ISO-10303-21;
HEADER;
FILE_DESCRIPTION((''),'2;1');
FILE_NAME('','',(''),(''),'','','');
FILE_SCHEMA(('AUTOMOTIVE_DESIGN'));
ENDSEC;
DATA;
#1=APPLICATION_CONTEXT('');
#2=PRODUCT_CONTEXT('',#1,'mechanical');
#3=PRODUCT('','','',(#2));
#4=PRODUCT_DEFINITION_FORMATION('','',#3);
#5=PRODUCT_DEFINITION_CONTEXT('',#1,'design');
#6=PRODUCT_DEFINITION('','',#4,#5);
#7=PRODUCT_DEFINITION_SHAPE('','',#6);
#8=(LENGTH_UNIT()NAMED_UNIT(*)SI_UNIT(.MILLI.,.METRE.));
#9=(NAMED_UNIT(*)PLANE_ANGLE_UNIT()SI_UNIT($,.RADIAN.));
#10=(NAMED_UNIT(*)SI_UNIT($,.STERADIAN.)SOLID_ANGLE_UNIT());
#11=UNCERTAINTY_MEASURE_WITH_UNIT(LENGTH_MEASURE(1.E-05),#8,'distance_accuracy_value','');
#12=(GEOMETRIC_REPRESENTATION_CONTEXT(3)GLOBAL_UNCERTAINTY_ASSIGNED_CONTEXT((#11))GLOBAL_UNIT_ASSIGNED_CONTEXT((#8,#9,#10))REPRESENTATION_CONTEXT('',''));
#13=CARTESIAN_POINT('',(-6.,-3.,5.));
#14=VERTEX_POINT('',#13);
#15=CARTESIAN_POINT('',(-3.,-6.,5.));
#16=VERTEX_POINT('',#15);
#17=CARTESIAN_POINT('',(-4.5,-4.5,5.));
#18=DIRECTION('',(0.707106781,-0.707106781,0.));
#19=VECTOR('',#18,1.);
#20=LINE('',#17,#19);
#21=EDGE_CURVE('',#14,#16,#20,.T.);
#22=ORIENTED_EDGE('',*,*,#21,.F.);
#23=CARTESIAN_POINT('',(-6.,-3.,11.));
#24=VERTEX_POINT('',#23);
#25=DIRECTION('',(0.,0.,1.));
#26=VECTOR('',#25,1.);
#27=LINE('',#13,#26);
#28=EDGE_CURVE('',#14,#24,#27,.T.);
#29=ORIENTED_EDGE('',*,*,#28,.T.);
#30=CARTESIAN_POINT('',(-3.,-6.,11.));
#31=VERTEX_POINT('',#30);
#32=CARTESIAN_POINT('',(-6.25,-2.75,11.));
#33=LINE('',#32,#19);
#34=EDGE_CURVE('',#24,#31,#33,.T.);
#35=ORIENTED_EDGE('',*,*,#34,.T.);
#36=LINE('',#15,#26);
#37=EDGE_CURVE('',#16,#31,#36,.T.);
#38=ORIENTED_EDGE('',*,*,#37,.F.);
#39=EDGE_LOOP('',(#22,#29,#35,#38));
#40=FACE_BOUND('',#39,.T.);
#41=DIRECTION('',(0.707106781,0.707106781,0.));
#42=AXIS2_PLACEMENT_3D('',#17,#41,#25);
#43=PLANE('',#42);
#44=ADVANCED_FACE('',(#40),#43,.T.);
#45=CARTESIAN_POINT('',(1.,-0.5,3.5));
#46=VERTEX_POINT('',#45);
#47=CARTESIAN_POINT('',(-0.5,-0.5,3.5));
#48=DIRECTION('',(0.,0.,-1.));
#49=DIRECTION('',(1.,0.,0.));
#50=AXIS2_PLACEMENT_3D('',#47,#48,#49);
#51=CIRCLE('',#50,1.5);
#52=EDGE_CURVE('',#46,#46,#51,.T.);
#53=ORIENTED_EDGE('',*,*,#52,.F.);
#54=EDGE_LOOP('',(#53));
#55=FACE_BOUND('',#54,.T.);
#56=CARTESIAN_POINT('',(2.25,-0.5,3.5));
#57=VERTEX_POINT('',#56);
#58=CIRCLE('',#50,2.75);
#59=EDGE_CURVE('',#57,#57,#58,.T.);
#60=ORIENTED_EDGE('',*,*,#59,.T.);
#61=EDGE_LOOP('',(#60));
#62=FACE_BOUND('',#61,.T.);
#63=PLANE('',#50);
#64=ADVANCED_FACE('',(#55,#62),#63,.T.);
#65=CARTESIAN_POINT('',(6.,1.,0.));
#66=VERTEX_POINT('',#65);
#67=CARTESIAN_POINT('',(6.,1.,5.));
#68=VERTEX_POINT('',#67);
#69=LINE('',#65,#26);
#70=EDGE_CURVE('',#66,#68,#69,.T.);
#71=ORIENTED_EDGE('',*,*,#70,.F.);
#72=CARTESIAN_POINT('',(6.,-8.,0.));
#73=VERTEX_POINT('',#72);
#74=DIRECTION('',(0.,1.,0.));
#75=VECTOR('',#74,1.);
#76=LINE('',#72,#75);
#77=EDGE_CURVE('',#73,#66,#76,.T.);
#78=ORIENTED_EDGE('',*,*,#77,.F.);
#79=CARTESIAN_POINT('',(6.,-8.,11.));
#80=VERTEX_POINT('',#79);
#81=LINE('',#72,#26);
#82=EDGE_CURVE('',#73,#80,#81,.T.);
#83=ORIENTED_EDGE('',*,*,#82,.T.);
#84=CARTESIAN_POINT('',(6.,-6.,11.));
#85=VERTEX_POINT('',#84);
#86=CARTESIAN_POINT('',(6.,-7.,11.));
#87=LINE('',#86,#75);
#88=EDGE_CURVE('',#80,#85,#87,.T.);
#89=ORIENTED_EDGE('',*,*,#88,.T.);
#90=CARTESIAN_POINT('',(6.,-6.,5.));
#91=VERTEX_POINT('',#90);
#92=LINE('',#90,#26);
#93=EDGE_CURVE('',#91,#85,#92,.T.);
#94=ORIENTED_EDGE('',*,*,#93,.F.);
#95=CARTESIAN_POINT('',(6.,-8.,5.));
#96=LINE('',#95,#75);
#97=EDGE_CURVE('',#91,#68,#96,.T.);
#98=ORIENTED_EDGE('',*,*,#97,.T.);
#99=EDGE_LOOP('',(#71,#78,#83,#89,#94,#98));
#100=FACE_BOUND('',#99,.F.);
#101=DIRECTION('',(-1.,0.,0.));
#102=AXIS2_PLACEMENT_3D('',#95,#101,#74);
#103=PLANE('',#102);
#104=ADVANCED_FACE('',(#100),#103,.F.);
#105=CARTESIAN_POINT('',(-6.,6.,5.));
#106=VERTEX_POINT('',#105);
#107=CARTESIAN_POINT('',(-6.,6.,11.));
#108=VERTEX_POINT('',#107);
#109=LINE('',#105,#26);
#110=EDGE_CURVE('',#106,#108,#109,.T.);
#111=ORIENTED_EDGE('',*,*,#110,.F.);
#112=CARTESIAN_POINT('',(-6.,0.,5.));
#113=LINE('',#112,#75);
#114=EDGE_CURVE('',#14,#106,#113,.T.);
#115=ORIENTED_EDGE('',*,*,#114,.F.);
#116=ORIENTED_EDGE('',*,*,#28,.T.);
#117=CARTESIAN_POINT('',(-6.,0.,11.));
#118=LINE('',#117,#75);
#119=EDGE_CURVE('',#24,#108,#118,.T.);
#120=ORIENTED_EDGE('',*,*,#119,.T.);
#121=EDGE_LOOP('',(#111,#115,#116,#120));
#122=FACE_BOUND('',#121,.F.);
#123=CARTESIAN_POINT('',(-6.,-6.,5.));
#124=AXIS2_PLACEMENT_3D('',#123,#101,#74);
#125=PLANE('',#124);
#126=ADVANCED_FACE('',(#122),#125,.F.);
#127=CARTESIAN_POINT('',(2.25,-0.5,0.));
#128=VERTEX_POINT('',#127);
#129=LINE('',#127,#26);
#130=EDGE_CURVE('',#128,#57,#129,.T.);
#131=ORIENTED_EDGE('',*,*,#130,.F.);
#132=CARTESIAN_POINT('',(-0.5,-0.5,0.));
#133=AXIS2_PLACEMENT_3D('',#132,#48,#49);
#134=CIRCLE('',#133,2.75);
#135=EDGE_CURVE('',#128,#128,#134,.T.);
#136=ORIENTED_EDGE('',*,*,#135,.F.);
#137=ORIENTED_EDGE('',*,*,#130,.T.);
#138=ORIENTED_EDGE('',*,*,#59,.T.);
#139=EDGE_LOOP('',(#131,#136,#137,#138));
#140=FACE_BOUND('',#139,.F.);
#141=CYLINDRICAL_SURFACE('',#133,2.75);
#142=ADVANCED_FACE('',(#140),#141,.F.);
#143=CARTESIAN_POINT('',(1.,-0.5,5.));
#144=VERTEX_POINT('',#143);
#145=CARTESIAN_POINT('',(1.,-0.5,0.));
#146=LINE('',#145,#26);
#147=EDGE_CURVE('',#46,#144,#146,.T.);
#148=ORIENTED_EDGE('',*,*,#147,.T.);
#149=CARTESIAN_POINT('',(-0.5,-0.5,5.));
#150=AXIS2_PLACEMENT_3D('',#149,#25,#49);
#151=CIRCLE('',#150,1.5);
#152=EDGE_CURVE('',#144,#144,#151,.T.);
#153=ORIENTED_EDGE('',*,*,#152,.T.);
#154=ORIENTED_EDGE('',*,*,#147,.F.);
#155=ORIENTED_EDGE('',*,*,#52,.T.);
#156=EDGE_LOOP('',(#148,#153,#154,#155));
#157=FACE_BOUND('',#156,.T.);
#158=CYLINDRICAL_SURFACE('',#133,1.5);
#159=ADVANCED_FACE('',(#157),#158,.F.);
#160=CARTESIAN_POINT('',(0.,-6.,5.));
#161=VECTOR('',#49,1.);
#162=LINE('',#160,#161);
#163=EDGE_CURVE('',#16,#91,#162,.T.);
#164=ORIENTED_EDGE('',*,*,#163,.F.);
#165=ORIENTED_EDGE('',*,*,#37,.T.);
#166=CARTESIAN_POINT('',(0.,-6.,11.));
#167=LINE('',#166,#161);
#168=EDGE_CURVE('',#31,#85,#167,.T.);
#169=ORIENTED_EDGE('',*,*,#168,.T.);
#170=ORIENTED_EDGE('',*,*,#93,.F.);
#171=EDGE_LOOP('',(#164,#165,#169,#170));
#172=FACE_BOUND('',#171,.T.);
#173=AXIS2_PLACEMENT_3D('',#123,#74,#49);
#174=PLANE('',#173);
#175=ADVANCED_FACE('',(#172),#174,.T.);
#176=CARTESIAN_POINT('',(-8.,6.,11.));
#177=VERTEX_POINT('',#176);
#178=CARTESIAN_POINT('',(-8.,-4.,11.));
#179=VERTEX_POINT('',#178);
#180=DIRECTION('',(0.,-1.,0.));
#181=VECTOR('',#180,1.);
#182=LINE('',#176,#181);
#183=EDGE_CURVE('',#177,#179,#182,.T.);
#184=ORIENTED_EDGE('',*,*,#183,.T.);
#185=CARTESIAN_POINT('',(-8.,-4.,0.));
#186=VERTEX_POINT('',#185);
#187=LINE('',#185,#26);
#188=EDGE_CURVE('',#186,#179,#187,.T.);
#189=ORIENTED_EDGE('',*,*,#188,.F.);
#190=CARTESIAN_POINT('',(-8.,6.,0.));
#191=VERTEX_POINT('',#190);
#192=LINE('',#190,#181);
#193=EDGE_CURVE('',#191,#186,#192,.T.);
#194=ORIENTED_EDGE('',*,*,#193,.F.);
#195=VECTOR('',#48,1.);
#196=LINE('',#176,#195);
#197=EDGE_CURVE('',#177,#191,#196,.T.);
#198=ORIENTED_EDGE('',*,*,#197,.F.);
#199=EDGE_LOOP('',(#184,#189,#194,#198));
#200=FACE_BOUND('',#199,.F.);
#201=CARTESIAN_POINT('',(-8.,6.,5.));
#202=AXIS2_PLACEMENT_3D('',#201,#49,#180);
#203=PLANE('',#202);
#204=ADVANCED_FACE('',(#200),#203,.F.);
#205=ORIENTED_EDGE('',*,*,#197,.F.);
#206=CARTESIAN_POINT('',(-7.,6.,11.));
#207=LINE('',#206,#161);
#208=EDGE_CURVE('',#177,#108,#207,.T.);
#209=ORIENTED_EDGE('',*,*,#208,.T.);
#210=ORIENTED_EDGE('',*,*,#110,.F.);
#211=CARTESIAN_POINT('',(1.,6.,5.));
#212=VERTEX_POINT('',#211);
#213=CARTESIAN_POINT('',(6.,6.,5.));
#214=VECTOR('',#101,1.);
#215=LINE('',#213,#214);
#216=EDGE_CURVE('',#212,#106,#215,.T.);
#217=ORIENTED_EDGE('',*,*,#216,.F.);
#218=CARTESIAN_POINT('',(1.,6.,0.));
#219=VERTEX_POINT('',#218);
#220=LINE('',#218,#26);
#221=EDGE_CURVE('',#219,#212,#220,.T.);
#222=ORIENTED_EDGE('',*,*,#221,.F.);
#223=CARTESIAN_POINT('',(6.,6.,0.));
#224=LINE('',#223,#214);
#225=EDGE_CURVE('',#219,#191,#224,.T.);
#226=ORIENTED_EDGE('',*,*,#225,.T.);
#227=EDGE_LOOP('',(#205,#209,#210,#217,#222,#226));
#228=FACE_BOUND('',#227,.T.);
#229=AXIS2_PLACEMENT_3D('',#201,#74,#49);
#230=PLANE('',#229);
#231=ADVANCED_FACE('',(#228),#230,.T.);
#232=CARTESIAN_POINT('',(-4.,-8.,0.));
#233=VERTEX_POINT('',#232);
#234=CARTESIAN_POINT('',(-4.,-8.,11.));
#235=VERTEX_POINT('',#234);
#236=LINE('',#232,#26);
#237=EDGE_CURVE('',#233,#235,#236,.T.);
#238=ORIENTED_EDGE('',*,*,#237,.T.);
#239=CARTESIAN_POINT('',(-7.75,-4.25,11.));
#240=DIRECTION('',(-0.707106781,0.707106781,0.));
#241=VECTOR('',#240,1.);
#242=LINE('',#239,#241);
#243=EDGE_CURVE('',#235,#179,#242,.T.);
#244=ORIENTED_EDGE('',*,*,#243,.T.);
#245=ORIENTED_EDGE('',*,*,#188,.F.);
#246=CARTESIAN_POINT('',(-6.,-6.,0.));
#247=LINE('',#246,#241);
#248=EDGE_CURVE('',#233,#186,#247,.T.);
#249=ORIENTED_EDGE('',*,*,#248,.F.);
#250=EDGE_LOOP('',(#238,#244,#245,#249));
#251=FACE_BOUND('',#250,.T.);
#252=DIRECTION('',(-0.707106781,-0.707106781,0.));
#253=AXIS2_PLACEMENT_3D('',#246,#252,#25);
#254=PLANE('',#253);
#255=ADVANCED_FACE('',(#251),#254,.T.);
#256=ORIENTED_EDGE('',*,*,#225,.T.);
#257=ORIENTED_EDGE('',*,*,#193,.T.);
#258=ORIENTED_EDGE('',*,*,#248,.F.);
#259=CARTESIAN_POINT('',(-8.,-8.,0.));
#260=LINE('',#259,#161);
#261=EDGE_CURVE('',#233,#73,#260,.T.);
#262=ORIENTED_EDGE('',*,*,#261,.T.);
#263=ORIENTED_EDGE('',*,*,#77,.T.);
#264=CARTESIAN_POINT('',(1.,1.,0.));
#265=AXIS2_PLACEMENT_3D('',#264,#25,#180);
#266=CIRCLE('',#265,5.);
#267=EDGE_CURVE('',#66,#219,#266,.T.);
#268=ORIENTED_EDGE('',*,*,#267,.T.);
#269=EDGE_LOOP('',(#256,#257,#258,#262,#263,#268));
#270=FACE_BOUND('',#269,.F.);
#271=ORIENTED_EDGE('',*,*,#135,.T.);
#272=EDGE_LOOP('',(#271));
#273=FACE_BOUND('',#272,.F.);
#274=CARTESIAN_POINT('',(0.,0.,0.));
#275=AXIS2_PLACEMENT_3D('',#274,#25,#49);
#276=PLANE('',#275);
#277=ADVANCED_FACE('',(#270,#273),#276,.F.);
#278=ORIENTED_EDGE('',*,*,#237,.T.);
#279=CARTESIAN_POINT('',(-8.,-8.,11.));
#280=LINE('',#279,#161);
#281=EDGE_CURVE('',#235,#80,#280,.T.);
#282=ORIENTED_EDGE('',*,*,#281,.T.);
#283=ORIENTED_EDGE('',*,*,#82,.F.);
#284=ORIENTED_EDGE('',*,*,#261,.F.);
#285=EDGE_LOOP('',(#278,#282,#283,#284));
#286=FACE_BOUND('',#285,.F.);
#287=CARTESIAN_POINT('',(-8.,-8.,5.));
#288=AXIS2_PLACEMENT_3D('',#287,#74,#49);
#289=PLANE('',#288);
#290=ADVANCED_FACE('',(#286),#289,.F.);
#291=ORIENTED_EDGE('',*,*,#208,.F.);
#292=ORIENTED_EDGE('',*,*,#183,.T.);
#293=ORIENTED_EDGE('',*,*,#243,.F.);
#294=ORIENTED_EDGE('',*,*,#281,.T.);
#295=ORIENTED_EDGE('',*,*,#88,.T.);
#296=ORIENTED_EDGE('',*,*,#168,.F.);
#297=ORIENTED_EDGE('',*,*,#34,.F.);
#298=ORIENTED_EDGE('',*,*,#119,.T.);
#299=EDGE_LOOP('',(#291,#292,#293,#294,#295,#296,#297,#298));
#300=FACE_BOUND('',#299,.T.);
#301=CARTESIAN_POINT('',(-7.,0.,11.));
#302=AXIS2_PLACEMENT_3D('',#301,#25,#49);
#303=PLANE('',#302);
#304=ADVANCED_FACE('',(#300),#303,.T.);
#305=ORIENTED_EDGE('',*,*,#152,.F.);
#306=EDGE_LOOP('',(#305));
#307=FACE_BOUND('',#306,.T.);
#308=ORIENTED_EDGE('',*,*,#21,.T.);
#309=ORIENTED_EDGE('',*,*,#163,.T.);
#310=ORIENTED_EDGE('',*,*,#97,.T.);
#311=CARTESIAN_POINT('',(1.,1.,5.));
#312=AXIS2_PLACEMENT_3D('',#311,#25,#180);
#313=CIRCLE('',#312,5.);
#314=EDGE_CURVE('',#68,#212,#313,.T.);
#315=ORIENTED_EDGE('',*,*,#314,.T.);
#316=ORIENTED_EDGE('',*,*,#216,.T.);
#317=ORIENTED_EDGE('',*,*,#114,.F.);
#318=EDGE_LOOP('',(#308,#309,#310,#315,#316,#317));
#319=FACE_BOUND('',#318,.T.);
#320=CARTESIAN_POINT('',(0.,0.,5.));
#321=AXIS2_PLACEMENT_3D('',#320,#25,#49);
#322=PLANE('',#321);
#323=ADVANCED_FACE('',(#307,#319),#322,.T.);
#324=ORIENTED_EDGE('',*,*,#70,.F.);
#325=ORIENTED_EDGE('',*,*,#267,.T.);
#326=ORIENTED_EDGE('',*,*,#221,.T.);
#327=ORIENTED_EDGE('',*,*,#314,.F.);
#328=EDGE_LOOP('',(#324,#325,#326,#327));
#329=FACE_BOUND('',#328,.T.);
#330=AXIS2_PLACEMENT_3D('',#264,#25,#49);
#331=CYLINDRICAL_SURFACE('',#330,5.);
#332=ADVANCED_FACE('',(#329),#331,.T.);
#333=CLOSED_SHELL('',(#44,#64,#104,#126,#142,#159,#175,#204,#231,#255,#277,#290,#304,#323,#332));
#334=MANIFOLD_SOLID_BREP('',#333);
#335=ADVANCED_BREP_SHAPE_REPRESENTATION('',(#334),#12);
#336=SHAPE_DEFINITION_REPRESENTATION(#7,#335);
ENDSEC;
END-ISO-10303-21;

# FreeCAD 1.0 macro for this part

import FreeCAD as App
import Part
import Sketcher


def edges_at(feature, points):
    """Names of the edges that pass closest to the given points."""
    edges = feature.Shape.Edges
    near = lambda p: min(range(len(edges)), key=lambda i: edges[i].distToShape(Part.Vertex(*p))[0])
    return sorted({f"Edge{near(p) + 1}" for p in points})

doc = App.newDocument("Part")
body = doc.addObject("PartDesign::Body", "Body")

# Sketch on XY plane
sketch1 = body.newObject("Sketcher::SketchObject", "Sketch")
sketch1.AttachmentSupport = (doc.getObject("XY_Plane"), [""])
sketch1.MapMode = "FlatFace"
sketch1.addGeometry([
    Part.LineSegment(App.Vector(6, -8, 0), App.Vector(6, 6, 0)),  # 0
    Part.LineSegment(App.Vector(6, 6, 0), App.Vector(-8, 6, 0)),  # 1
    Part.LineSegment(App.Vector(-8, 6, 0), App.Vector(-8, -8, 0)),  # 2
    Part.LineSegment(App.Vector(-8, -8, 0), App.Vector(6, -8, 0)),  # 3
    Part.Circle(App.Vector(-0.5, -0.5, 0), App.Vector(0, 0, 1), 1.5),  # 4
], False)
sketch1.addConstraint([
    Sketcher.Constraint("Coincident", 0, 2, 1, 1),
    Sketcher.Constraint("Coincident", 1, 2, 2, 1),
    Sketcher.Constraint("Coincident", 2, 2, 3, 1),
    Sketcher.Constraint("Coincident", 3, 2, 0, 1),
    Sketcher.Constraint("Vertical", 0),
    Sketcher.Constraint("Horizontal", 1),
    Sketcher.Constraint("Vertical", 2),
    Sketcher.Constraint("Horizontal", 3),
    Sketcher.Constraint("Equal", 3, 0),
    Sketcher.Constraint("Diameter", 4, 3.0),
    Sketcher.Constraint("DistanceX", 1, 2, 1, 1, 14.0),
    Sketcher.Constraint("DistanceX", -1, 1, 0, 2, 6.0),
    Sketcher.Constraint("DistanceY", -1, 1, 0, 2, 6.0),
    Sketcher.Constraint("DistanceX", 4, 3, -1, 1, 0.5),
    Sketcher.Constraint("DistanceY", 4, 3, -1, 1, 0.5),
])
pad1 = body.newObject("PartDesign::Pad", "Pad")
pad1.Profile = sketch1
pad1.Length = 5

# Sketch on XY plane
sketch2 = body.newObject("Sketcher::SketchObject", "Sketch001")
sketch2.AttachmentSupport = (doc.getObject("XY_Plane"), [""])
sketch2.MapMode = "FlatFace"
sketch2.AttachmentOffset = App.Placement(App.Vector(0, 0, 5), App.Rotation())
sketch2.addGeometry([
    Part.LineSegment(App.Vector(-8, 6, 0), App.Vector(-8, -8, 0)),  # 0
    Part.LineSegment(App.Vector(-8, -8, 0), App.Vector(6, -8, 0)),  # 1
    Part.LineSegment(App.Vector(6, -8, 0), App.Vector(6, -6, 0)),  # 2
    Part.LineSegment(App.Vector(6, -6, 0), App.Vector(-6, -6, 0)),  # 3
    Part.LineSegment(App.Vector(-6, -6, 0), App.Vector(-6, 6, 0)),  # 4
    Part.LineSegment(App.Vector(-6, 6, 0), App.Vector(-8, 6, 0)),  # 5
], False)
sketch2.addConstraint([
    Sketcher.Constraint("Coincident", 0, 2, 1, 1),
    Sketcher.Constraint("Coincident", 1, 2, 2, 1),
    Sketcher.Constraint("Coincident", 2, 2, 3, 1),
    Sketcher.Constraint("Coincident", 3, 2, 4, 1),
    Sketcher.Constraint("Coincident", 4, 2, 5, 1),
    Sketcher.Constraint("Coincident", 5, 2, 0, 1),
    Sketcher.Constraint("Vertical", 0),
    Sketcher.Constraint("Horizontal", 1),
    Sketcher.Constraint("Vertical", 2),
    Sketcher.Constraint("Horizontal", 3),
    Sketcher.Constraint("Vertical", 4),
    Sketcher.Constraint("Horizontal", 5),
    Sketcher.Constraint("Symmetric", 2, 2, 4, 2, -1, 1),
    Sketcher.Constraint("Equal", 1, 0),
    Sketcher.Constraint("Equal", 5, 2),
    Sketcher.Constraint("DistanceX", 1, 1, 1, 2, 14.0),
    Sketcher.Constraint("DistanceX", 3, 2, 3, 1, 12.0),
])
pad2 = body.newObject("PartDesign::Pad", "Pad001")
pad2.Profile = sketch2
pad2.Length = 6

# Sketch on XY plane
sketch3 = body.newObject("Sketcher::SketchObject", "Sketch002")
sketch3.AttachmentSupport = (doc.getObject("XY_Plane"), [""])
sketch3.MapMode = "FlatFace"
sketch3.addGeometry(Part.Circle(App.Vector(-0.5, -0.5, 0), App.Vector(0, 0, 1), 2.75), False)
sketch3.addConstraint([
    Sketcher.Constraint("Diameter", 0, 5.5),
    Sketcher.Constraint("DistanceX", 0, 3, -1, 1, 0.5),
    Sketcher.Constraint("DistanceY", 0, 3, -1, 1, 0.5),
])
pocket1 = body.newObject("PartDesign::Pocket", "Pocket")
pocket1.Profile = sketch3
pocket1.Length = 3.5
pocket1.Reversed = True
doc.recompute()

chamfer = body.newObject("PartDesign::Chamfer", "Chamfer")
chamfer.Base = (pocket1, edges_at(pocket1, [(-6, -6, 8)]))
chamfer.Size = 3
doc.recompute()

chamfer2 = body.newObject("PartDesign::Chamfer", "Chamfer001")
chamfer2.Base = (chamfer, edges_at(chamfer, [(-8, -8, 5.5)]))
chamfer2.Size = 4
doc.recompute()

fillet = body.newObject("PartDesign::Fillet", "Fillet")
fillet.Base = (chamfer2, edges_at(chamfer2, [(6, 6, 2.5)]))
fillet.Radius = 5

doc.recompute()
